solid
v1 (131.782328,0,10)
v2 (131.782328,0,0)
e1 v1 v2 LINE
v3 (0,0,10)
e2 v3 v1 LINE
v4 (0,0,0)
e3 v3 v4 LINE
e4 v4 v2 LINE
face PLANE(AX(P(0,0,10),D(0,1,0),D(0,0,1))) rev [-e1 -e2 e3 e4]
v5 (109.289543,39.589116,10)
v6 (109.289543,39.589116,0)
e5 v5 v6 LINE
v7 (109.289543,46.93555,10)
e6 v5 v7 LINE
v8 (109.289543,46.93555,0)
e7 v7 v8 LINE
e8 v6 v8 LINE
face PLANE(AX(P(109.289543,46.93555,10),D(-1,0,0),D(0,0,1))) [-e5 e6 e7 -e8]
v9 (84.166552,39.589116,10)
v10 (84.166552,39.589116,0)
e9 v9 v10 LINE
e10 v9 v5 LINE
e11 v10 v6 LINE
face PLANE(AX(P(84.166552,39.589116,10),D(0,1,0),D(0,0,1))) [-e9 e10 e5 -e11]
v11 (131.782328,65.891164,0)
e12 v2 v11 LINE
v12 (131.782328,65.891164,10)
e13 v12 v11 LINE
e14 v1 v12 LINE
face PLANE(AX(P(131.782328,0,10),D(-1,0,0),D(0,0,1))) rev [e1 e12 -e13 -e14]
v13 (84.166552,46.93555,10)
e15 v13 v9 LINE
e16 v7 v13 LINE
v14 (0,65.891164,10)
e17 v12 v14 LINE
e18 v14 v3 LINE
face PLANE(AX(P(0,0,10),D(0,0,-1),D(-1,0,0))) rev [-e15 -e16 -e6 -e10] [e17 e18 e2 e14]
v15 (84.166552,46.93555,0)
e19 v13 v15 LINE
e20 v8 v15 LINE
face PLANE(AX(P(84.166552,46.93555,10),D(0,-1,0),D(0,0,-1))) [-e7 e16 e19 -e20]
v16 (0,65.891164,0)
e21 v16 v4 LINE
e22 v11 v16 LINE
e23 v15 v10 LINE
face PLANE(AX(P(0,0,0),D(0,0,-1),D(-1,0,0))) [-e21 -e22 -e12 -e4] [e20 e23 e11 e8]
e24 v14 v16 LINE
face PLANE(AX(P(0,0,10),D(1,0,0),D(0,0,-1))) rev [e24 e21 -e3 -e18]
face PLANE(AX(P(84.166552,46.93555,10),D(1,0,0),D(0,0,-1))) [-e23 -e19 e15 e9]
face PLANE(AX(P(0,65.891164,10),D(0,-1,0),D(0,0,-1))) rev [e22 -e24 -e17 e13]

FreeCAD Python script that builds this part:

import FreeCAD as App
import Part
import Sketcher

V = App.Vector

doc = App.newDocument("Part")
body = doc.addObject("PartDesign::Body", "Body")

# Sketch on XY plane
sketch1 = doc.addObject("Sketcher::SketchObject", "Sketch")
body.addObject(sketch1)
sketch1.AttachmentSupport = (doc.XY_Plane, [""])
sketch1.MapMode = "FlatFace"
sketch1.addGeometry([
    Part.LineSegment(V(0, 66, 0), V(0, 0, 0)),  # 0
    Part.LineSegment(V(0, 0, 0), V(132, 0, 0)),  # 1
    Part.LineSegment(V(132, 0, 0), V(132, 66, 0)),  # 2
    Part.LineSegment(V(132, 66, 0), V(0, 66, 0)),  # 3
    Part.LineSegment(V(109, 40, 0), V(84, 40, 0)),  # 4
    Part.LineSegment(V(84, 40, 0), V(84, 47, 0)),  # 5
    Part.LineSegment(V(84, 47, 0), V(109, 47, 0)),  # 6
    Part.LineSegment(V(109, 47, 0), V(109, 40, 0)),  # 7
], False)
sketch1.addConstraint([
    Sketcher.Constraint("Coincident", 0, 2, 1, 1),
    Sketcher.Constraint("Coincident", 1, 2, 2, 1),
    Sketcher.Constraint("Coincident", 2, 2, 3, 1),
    Sketcher.Constraint("Coincident", 3, 2, 0, 1),
    Sketcher.Constraint("Coincident", 4, 2, 5, 1),
    Sketcher.Constraint("Coincident", 5, 2, 6, 1),
    Sketcher.Constraint("Coincident", 6, 2, 7, 1),
    Sketcher.Constraint("Coincident", 7, 2, 4, 1),
    Sketcher.Constraint("Vertical", 0),
    Sketcher.Constraint("Horizontal", 1),
    Sketcher.Constraint("Vertical", 2),
    Sketcher.Constraint("Horizontal", 3),
    Sketcher.Constraint("Horizontal", 4),
    Sketcher.Constraint("Vertical", 5),
    Sketcher.Constraint("Horizontal", 6),
    Sketcher.Constraint("Vertical", 7),
    Sketcher.Constraint("Coincident", 0, 2, -1, 1),
    Sketcher.Constraint("DistanceX", 1, 1, 1, 2, 131.782328),
    Sketcher.Constraint("DistanceX", 4, 2, 4, 1, 25.12299),
    Sketcher.Constraint("DistanceY", 0, 2, 0, 1, 65.891164),
    Sketcher.Constraint("DistanceY", 5, 1, 5, 2, 7.346434),
    Sketcher.Constraint("DistanceY", -1, 1, 5, 2, 46.93555),
    Sketcher.Constraint("DistanceX", -1, 1, 4, 2, 84.166552),
])
pad1 = doc.addObject("PartDesign::Pad", "Pad")
body.addObject(pad1)
pad1.Profile = sketch1
pad1.Length = 10

doc.recompute()
